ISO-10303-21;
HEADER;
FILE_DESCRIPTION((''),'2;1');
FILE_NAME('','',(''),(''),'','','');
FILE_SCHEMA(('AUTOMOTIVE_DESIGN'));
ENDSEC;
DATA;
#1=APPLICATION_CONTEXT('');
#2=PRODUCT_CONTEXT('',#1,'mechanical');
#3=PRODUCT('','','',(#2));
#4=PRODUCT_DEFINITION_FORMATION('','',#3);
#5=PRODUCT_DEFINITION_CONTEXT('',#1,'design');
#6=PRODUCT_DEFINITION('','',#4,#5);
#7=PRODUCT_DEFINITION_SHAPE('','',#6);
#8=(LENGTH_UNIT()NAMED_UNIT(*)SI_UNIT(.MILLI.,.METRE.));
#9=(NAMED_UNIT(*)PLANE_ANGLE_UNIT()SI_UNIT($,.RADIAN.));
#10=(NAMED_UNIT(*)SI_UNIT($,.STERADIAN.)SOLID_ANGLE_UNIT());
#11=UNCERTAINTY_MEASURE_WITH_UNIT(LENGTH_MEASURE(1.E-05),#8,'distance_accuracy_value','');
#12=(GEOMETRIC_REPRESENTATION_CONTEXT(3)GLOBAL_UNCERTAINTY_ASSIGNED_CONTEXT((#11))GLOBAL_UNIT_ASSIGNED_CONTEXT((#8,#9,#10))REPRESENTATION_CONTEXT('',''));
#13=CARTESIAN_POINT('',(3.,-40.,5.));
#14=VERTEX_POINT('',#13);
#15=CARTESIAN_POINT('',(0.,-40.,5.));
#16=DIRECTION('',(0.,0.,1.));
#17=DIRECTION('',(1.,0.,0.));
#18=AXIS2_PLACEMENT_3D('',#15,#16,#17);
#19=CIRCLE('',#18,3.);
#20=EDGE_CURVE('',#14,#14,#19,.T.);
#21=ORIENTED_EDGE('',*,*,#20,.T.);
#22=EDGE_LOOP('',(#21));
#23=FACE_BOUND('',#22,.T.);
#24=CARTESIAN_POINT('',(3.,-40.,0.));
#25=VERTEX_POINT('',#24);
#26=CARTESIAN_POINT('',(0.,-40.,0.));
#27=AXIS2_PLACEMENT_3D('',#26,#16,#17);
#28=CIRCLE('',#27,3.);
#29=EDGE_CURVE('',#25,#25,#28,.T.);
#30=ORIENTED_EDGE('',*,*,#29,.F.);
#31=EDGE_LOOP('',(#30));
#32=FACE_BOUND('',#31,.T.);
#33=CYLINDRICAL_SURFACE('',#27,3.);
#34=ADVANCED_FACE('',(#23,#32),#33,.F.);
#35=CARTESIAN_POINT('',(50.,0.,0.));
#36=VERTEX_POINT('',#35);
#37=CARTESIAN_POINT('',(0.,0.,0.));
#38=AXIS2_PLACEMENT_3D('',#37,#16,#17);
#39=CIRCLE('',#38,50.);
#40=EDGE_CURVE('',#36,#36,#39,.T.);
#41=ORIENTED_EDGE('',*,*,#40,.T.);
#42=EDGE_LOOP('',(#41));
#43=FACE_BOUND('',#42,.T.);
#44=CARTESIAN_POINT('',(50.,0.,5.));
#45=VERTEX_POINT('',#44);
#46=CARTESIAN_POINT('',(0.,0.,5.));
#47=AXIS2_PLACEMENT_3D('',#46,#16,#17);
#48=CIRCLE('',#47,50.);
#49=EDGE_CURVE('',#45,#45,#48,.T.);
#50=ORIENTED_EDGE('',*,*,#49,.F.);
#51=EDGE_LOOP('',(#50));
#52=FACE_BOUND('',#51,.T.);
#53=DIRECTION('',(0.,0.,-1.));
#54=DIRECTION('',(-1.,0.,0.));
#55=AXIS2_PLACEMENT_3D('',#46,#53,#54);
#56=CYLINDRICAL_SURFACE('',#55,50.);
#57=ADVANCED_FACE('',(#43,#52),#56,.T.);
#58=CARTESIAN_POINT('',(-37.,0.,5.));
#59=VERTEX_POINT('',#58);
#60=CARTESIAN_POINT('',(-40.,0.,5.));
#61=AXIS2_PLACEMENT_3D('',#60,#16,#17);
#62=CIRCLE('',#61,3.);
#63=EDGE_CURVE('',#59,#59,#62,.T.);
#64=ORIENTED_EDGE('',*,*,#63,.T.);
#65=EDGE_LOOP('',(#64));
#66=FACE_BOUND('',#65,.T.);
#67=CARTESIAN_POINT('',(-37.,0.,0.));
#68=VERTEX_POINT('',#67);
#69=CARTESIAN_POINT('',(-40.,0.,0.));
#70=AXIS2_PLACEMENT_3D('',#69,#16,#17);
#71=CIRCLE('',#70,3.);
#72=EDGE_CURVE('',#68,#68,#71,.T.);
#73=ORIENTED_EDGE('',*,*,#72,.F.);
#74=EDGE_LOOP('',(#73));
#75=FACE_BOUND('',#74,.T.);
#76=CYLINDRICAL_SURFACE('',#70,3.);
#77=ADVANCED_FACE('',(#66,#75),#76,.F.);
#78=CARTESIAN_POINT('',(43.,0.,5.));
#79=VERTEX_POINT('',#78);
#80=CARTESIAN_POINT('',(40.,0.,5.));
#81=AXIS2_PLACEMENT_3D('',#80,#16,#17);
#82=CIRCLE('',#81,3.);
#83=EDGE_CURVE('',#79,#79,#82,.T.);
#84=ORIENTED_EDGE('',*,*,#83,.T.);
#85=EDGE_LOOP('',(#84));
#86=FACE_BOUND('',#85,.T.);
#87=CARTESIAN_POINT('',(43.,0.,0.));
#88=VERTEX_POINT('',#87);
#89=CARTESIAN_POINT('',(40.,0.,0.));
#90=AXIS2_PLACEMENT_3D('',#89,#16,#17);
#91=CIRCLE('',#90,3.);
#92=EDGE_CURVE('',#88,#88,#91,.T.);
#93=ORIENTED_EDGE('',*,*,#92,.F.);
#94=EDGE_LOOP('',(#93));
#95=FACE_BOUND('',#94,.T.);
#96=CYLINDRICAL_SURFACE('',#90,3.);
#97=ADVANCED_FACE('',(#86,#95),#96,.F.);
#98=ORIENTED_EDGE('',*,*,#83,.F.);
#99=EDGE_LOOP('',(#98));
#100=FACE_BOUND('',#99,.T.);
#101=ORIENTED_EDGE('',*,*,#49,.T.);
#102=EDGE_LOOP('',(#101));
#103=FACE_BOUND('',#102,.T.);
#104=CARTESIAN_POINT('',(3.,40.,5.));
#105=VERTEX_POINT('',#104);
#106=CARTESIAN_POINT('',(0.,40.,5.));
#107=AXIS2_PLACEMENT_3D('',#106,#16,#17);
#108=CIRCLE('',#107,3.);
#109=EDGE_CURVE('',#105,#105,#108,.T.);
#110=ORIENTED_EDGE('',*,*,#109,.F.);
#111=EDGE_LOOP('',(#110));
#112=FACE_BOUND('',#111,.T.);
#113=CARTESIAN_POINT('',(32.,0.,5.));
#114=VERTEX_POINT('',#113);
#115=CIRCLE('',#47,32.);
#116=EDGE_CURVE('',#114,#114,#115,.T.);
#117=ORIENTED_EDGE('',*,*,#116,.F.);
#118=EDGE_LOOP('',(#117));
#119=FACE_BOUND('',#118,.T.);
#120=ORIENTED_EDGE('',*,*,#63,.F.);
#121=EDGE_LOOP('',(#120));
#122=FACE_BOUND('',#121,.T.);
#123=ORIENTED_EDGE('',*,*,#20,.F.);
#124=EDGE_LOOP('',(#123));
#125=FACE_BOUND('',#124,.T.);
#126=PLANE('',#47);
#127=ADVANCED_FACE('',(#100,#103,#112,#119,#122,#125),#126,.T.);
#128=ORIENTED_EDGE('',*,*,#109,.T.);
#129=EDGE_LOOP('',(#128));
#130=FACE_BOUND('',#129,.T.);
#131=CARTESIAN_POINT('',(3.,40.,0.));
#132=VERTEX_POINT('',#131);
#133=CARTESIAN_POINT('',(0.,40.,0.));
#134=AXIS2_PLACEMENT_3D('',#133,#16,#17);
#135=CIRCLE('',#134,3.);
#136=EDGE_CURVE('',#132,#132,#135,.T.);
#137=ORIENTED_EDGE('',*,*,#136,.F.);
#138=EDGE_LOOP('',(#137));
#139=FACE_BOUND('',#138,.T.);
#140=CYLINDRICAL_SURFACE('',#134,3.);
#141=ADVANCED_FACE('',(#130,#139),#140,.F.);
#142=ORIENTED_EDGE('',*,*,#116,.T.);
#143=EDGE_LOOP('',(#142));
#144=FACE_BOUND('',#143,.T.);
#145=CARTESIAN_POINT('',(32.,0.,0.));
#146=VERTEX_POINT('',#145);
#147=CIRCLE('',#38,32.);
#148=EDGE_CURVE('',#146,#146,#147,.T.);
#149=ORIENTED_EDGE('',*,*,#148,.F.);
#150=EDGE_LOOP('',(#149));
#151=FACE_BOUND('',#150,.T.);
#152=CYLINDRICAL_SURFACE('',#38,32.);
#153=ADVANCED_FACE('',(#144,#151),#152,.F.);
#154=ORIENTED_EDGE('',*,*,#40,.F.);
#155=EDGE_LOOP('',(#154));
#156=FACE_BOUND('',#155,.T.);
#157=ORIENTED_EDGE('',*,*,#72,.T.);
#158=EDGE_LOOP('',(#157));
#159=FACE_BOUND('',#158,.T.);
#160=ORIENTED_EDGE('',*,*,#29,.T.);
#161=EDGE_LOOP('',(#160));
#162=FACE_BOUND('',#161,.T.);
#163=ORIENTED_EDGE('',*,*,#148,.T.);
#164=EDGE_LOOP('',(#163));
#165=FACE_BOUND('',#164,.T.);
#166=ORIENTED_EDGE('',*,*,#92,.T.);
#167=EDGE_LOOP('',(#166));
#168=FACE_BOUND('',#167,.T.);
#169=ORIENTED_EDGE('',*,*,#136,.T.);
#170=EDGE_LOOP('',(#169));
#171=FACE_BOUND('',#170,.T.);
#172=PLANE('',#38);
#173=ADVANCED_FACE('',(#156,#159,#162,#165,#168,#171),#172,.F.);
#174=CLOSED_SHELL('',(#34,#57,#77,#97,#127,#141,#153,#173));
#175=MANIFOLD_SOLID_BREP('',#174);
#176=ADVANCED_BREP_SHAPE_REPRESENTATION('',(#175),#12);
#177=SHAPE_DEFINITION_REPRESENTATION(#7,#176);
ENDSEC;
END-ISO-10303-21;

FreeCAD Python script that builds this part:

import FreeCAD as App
import Part
import Sketcher
from FreeCAD import Vector

doc = App.newDocument("Part")
body = doc.addObject("PartDesign::Body", "Body")

sketch1 = body.newObject("Sketcher::SketchObject", "Sketch")
sketch1.AttachmentSupport = (doc.getObject("XY_Plane"), [""])
sketch1.MapMode = "FlatFace"
sketch1.addGeometry(Part.Circle(Vector(0, 0, 0), Vector(0, 0, 1), 50), False)
sketch1.addConstraint(Sketcher.Constraint("Coincident", 0, 3, -1, 1))
sketch1.addConstraint(Sketcher.Constraint("Diameter", 0, 100.0))
pad1 = body.newObject("PartDesign::Pad", "Pad")
pad1.Profile = sketch1
pad1.Length = 5

sketch2 = body.newObject("Sketcher::SketchObject", "Sketch001")
sketch2.AttachmentSupport = (doc.getObject("XY_Plane"), [""])
sketch2.MapMode = "FlatFace"
sketch2.AttachmentOffset = App.Placement(Vector(0, 0, 5), App.Rotation())
sketch2.addGeometry(Part.Circle(Vector(0, 0, 0), Vector(0, 0, 1), 32), False)
sketch2.addConstraint(Sketcher.Constraint("Coincident", 0, 3, -1, 1))
sketch2.addConstraint(Sketcher.Constraint("Diameter", 0, 64.0))
pocket1 = body.newObject("PartDesign::Pocket", "Pocket")
pocket1.Profile = sketch2
pocket1.Length = 5

sketch3 = body.newObject("Sketcher::SketchObject", "Sketch002")
sketch3.AttachmentSupport = (doc.getObject("XY_Plane"), [""])
sketch3.MapMode = "FlatFace"
sketch3.AttachmentOffset = App.Placement(Vector(0, 0, 5), App.Rotation())
sketch3.addGeometry(Part.Circle(Vector(0, 40, 0), Vector(0, 0, 1), 3), False)
sketch3.addGeometry(Part.Circle(Vector(40, 0, 0), Vector(0, 0, 1), 3), False)
sketch3.addGeometry(Part.Circle(Vector(0, -40, 0), Vector(0, 0, 1), 3), False)
sketch3.addGeometry(Part.Circle(Vector(-40, 0, 0), Vector(0, 0, 1), 3), False)
sketch3.addConstraint(Sketcher.Constraint("Equal", 0, 1))
sketch3.addConstraint(Sketcher.Constraint("Equal", 1, 2))
sketch3.addConstraint(Sketcher.Constraint("Equal", 2, 3))
sketch3.addConstraint(Sketcher.Constraint("Symmetric", 0, 3, 2, 3, -1, 1))
sketch3.addConstraint(Sketcher.Constraint("Symmetric", 1, 3, 3, 3, -1, 1))
sketch3.addConstraint(Sketcher.Constraint("PointOnObject", 0, 3, -2))
sketch3.addConstraint(Sketcher.Constraint("PointOnObject", 1, 3, -1))
sketch3.addConstraint(Sketcher.Constraint("Diameter", 0, 6.0))
sketch3.addConstraint(Sketcher.Constraint("DistanceY", -1, 1, 0, 3, 40.0))
sketch3.addConstraint(Sketcher.Constraint("DistanceX", -1, 1, 1, 3, 40.0))
pocket2 = body.newObject("PartDesign::Pocket", "Pocket001")
pocket2.Profile = sketch3
pocket2.Length = 5

doc.recompute()
